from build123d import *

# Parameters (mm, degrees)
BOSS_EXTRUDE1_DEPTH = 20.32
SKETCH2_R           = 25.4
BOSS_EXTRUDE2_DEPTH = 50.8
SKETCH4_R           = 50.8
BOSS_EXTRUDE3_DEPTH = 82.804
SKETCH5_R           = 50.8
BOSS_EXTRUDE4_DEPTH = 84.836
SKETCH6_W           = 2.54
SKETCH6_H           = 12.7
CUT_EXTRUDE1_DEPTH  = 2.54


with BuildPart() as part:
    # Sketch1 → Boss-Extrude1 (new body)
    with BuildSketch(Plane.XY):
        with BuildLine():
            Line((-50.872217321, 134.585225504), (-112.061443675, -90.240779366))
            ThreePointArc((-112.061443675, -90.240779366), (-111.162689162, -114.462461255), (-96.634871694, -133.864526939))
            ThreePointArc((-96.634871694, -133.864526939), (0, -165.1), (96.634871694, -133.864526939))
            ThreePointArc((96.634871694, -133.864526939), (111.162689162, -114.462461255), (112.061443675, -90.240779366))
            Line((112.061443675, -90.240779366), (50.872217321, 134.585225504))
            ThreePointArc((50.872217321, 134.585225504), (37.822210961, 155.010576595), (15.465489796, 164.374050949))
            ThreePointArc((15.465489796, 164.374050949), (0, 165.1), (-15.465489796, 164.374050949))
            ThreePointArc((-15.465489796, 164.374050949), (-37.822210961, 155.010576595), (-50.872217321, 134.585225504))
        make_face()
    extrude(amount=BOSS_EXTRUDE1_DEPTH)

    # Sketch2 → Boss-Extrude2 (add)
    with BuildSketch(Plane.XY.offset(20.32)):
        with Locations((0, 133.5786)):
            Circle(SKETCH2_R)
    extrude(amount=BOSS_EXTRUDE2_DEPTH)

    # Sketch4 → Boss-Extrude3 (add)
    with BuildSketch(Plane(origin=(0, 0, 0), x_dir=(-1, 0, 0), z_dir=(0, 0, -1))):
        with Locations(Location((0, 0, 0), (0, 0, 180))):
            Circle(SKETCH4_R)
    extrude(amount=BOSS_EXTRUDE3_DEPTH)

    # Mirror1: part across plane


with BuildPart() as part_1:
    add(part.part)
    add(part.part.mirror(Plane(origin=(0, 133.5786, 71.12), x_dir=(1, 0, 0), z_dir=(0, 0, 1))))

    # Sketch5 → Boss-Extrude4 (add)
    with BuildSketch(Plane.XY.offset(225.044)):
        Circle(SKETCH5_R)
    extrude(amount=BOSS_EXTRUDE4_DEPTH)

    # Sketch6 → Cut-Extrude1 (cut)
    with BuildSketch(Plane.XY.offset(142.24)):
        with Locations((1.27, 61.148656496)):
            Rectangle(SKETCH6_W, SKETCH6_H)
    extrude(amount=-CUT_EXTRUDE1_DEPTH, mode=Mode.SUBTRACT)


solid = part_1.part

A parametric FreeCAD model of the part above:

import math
import FreeCAD as App
import Part
import Sketcher
from FreeCAD import Vector
Q = App.Units.Quantity

doc = App.newDocument("Part")
body = doc.addObject("PartDesign::Body", "Body")

# Sketch on XY plane
sketch1 = body.newObject("Sketcher::SketchObject", "Sketch")
sketch1.AttachmentSupport = (doc.getObject("XY_Plane"), [""])
sketch1.MapMode = "FlatFace"
sketch1.addGeometry(Part.LineSegment(Vector(-50.872217, 134.585226, 0), Vector(-112.061444, -90.240779, 0)), False)
sketch1.addGeometry(Part.ArcOfCircle(Part.Circle(Vector(-72.847826, -100.913259, 0), Vector(0, 0, 1), 40.64), math.radians(164.775), math.radians(234.175025)), False)
sketch1.addGeometry(Part.ArcOfCircle(Part.Circle(Vector(0, 0, 0), Vector(0, 0, 1), 165.1), math.radians(-125.824975), math.radians(-54.175025)), False)
sketch1.addGeometry(Part.ArcOfCircle(Part.Circle(Vector(72.847826, -100.913259, 0), Vector(0, 0, 1), 40.64), math.radians(-54.175025), math.radians(15.225)), False)
sketch1.addGeometry(Part.LineSegment(Vector(112.061444, -90.240779, 0), Vector(50.872217, 134.585226, 0)), False)
sketch1.addGeometry(Part.ArcOfCircle(Part.Circle(Vector(11.6586, 123.912746, 0), Vector(0, 0, 1), 40.64), math.radians(15.225), math.radians(84.625025)), False)
sketch1.addGeometry(Part.ArcOfCircle(Part.Circle(Vector(0, 0, 0), Vector(0, 0, 1), 165.1), math.radians(84.625025), math.radians(95.374975)), False)
sketch1.addGeometry(Part.ArcOfCircle(Part.Circle(Vector(-11.6586, 123.912746, 0), Vector(0, 0, 1), 40.64), math.radians(95.374975), math.radians(164.775)), False)
sketch1.addConstraint(Sketcher.Constraint("Tangent", 0, 2, 1, 1))
sketch1.addConstraint(Sketcher.Constraint("Tangent", 1, 2, 2, 1))
sketch1.addConstraint(Sketcher.Constraint("Tangent", 2, 2, 3, 1))
sketch1.addConstraint(Sketcher.Constraint("Tangent", 3, 2, 4, 1))
sketch1.addConstraint(Sketcher.Constraint("Tangent", 4, 2, 5, 1))
sketch1.addConstraint(Sketcher.Constraint("Tangent", 5, 2, 6, 1))
sketch1.addConstraint(Sketcher.Constraint("Tangent", 6, 2, 7, 1))
sketch1.addConstraint(Sketcher.Constraint("Tangent", 7, 2, 0, 1))
sketch1.addConstraint(Sketcher.Constraint("Coincident", 2, 3, -1, 1))
sketch1.addConstraint(Sketcher.Constraint("Coincident", 6, 3, -1, 1))
sketch1.addConstraint(Sketcher.Constraint("Equal", 1, 3))
sketch1.addConstraint(Sketcher.Constraint("Equal", 3, 5))
sketch1.addConstraint(Sketcher.Constraint("Equal", 2, 6))
sketch1.addConstraint(Sketcher.Constraint("Equal", 5, 7))
sketch1.addConstraint(Sketcher.Constraint("Symmetric", 0, 2, 3, 2, -2))
sketch1.addConstraint(Sketcher.Constraint("Radius", 1, Q("1.6 in")))
sketch1.addConstraint(Sketcher.Constraint("Radius", 2, Q("6.5 in")))
sketch1.addConstraint(Sketcher.Constraint("DistanceX", -1, 1, 5, 3, Q("0.459 in")))
sketch1.addConstraint(Sketcher.Constraint("DistanceX", 1, 2, 3, 3, Q("169.482698 mm")))
pad1 = body.newObject("PartDesign::Pad", "Pad")
pad1.Profile = sketch1
pad1.Length = Q("0.8 in")

# Sketch on XY plane
sketch2 = body.newObject("Sketcher::SketchObject", "Sketch001")
sketch2.AttachmentSupport = (doc.getObject("XY_Plane"), [""])
sketch2.MapMode = "FlatFace"
sketch2.AttachmentOffset = App.Placement(Vector(0, 0, 0.8 * 25.4), App.Rotation())
sketch2.addGeometry(Part.Circle(Vector(0, 133.5786, 0), Vector(0, 0, 1), 25.4), False)
sketch2.addConstraint(Sketcher.Constraint("PointOnObject", 0, 3, -2))
sketch2.addConstraint(Sketcher.Constraint("Diameter", 0, Q("2 in")))
sketch2.addConstraint(Sketcher.Constraint("DistanceY", -1, 1, 0, 3, Q("5.259 in")))
pad2 = body.newObject("PartDesign::Pad", "Pad001")
pad2.Profile = sketch2
pad2.Length = Q("2 in")

# Sketch on XY plane
sketch3 = body.newObject("Sketcher::SketchObject", "Sketch002")
sketch3.AttachmentSupport = (doc.getObject("XY_Plane"), [""])
sketch3.MapMode = "FlatFace"
sketch3.addGeometry(Part.Circle(Vector(0, 0, 0), Vector(0, 0, 1), 50.8), False)
sketch3.addConstraint(Sketcher.Constraint("Coincident", 0, 3, -1, 1))
sketch3.addConstraint(Sketcher.Constraint("Diameter", 0, Q("4 in")))
pad3 = body.newObject("PartDesign::Pad", "Pad002")
pad3.Profile = sketch3
pad3.Length = Q("3.26 in")
pad3.Reversed = True
body2 = doc.addObject("PartDesign::Body", "Body001")
doc.recompute()

body2.BaseFeature = body
doc.recompute()

mirroring = doc.addObject("Part::Mirroring", "Mirroring")
mirroring.Source = body
mirroring.Base = Vector(0, 133.5786, 71.12)
mirroring.Normal = Vector(0, 0, 1)
body3 = doc.addObject("PartDesign::Body", "Body002")
body3.BaseFeature = mirroring
boolean = body2.newObject("PartDesign::Boolean", "Boolean")
boolean.Type = "Fuse"
boolean.addObjects([body3])
doc.recompute()

# Sketch on XY plane
sketch4 = body2.newObject("Sketcher::SketchObject", "Sketch003")
sketch4.AttachmentSupport = (doc.getObject("XY_Plane001"), [""])
sketch4.MapMode = "FlatFace"
sketch4.AttachmentOffset = App.Placement(Vector(0, 0, 8.86 * 25.4), App.Rotation())
sketch4.addGeometry(Part.Circle(Vector(0, 0, 0), Vector(0, 0, 1), 50.8), False)
sketch4.addConstraint(Sketcher.Constraint("Coincident", 0, 3, -1, 1))
sketch4.addConstraint(Sketcher.Constraint("Diameter", 0, Q("4 in")))
pad4 = body2.newObject("PartDesign::Pad", "Pad003")
pad4.Profile = sketch4
pad4.Length = Q("3.34 in")

# Sketch on XY plane
sketch5 = body2.newObject("Sketcher::SketchObject", "Sketch004")
sketch5.AttachmentSupport = (doc.getObject("XY_Plane001"), [""])
sketch5.MapMode = "FlatFace"
sketch5.AttachmentOffset = App.Placement(Vector(0, 0, 5.6 * 25.4), App.Rotation())
sketch5.addGeometry(Part.LineSegment(Vector(0, 67.498656, 0), Vector(0, 54.798656, 0)), False)
sketch5.addGeometry(Part.LineSegment(Vector(0, 54.798656, 0), Vector(2.54, 54.798656, 0)), False)
sketch5.addGeometry(Part.LineSegment(Vector(2.54, 54.798656, 0), Vector(2.54, 67.498656, 0)), False)
sketch5.addGeometry(Part.LineSegment(Vector(2.54, 67.498656, 0), Vector(0, 67.498656, 0)), False)
sketch5.addConstraint(Sketcher.Constraint("Coincident", 0, 2, 1, 1))
sketch5.addConstraint(Sketcher.Constraint("Coincident", 1, 2, 2, 1))
sketch5.addConstraint(Sketcher.Constraint("Coincident", 2, 2, 3, 1))
sketch5.addConstraint(Sketcher.Constraint("Coincident", 3, 2, 0, 1))
sketch5.addConstraint(Sketcher.Constraint("Vertical", 0))
sketch5.addConstraint(Sketcher.Constraint("Horizontal", 1))
sketch5.addConstraint(Sketcher.Constraint("Vertical", 2))
sketch5.addConstraint(Sketcher.Constraint("Horizontal", 3))
sketch5.addConstraint(Sketcher.Constraint("PointOnObject", 0, 2, -2))
sketch5.addConstraint(Sketcher.Constraint("DistanceX", 1, 1, 1, 2, Q("0.1 in")))
sketch5.addConstraint(Sketcher.Constraint("DistanceY", 0, 2, 0, 1, Q("0.5 in")))
sketch5.addConstraint(Sketcher.Constraint("DistanceY", -1, 1, 0, 2, Q("54.798656 mm")))
pocket1 = body2.newObject("PartDesign::Pocket", "Pocket")
pocket1.Profile = sketch5
pocket1.Length = Q("0.1 in")
mirroring.Visibility = False

doc.recompute()
